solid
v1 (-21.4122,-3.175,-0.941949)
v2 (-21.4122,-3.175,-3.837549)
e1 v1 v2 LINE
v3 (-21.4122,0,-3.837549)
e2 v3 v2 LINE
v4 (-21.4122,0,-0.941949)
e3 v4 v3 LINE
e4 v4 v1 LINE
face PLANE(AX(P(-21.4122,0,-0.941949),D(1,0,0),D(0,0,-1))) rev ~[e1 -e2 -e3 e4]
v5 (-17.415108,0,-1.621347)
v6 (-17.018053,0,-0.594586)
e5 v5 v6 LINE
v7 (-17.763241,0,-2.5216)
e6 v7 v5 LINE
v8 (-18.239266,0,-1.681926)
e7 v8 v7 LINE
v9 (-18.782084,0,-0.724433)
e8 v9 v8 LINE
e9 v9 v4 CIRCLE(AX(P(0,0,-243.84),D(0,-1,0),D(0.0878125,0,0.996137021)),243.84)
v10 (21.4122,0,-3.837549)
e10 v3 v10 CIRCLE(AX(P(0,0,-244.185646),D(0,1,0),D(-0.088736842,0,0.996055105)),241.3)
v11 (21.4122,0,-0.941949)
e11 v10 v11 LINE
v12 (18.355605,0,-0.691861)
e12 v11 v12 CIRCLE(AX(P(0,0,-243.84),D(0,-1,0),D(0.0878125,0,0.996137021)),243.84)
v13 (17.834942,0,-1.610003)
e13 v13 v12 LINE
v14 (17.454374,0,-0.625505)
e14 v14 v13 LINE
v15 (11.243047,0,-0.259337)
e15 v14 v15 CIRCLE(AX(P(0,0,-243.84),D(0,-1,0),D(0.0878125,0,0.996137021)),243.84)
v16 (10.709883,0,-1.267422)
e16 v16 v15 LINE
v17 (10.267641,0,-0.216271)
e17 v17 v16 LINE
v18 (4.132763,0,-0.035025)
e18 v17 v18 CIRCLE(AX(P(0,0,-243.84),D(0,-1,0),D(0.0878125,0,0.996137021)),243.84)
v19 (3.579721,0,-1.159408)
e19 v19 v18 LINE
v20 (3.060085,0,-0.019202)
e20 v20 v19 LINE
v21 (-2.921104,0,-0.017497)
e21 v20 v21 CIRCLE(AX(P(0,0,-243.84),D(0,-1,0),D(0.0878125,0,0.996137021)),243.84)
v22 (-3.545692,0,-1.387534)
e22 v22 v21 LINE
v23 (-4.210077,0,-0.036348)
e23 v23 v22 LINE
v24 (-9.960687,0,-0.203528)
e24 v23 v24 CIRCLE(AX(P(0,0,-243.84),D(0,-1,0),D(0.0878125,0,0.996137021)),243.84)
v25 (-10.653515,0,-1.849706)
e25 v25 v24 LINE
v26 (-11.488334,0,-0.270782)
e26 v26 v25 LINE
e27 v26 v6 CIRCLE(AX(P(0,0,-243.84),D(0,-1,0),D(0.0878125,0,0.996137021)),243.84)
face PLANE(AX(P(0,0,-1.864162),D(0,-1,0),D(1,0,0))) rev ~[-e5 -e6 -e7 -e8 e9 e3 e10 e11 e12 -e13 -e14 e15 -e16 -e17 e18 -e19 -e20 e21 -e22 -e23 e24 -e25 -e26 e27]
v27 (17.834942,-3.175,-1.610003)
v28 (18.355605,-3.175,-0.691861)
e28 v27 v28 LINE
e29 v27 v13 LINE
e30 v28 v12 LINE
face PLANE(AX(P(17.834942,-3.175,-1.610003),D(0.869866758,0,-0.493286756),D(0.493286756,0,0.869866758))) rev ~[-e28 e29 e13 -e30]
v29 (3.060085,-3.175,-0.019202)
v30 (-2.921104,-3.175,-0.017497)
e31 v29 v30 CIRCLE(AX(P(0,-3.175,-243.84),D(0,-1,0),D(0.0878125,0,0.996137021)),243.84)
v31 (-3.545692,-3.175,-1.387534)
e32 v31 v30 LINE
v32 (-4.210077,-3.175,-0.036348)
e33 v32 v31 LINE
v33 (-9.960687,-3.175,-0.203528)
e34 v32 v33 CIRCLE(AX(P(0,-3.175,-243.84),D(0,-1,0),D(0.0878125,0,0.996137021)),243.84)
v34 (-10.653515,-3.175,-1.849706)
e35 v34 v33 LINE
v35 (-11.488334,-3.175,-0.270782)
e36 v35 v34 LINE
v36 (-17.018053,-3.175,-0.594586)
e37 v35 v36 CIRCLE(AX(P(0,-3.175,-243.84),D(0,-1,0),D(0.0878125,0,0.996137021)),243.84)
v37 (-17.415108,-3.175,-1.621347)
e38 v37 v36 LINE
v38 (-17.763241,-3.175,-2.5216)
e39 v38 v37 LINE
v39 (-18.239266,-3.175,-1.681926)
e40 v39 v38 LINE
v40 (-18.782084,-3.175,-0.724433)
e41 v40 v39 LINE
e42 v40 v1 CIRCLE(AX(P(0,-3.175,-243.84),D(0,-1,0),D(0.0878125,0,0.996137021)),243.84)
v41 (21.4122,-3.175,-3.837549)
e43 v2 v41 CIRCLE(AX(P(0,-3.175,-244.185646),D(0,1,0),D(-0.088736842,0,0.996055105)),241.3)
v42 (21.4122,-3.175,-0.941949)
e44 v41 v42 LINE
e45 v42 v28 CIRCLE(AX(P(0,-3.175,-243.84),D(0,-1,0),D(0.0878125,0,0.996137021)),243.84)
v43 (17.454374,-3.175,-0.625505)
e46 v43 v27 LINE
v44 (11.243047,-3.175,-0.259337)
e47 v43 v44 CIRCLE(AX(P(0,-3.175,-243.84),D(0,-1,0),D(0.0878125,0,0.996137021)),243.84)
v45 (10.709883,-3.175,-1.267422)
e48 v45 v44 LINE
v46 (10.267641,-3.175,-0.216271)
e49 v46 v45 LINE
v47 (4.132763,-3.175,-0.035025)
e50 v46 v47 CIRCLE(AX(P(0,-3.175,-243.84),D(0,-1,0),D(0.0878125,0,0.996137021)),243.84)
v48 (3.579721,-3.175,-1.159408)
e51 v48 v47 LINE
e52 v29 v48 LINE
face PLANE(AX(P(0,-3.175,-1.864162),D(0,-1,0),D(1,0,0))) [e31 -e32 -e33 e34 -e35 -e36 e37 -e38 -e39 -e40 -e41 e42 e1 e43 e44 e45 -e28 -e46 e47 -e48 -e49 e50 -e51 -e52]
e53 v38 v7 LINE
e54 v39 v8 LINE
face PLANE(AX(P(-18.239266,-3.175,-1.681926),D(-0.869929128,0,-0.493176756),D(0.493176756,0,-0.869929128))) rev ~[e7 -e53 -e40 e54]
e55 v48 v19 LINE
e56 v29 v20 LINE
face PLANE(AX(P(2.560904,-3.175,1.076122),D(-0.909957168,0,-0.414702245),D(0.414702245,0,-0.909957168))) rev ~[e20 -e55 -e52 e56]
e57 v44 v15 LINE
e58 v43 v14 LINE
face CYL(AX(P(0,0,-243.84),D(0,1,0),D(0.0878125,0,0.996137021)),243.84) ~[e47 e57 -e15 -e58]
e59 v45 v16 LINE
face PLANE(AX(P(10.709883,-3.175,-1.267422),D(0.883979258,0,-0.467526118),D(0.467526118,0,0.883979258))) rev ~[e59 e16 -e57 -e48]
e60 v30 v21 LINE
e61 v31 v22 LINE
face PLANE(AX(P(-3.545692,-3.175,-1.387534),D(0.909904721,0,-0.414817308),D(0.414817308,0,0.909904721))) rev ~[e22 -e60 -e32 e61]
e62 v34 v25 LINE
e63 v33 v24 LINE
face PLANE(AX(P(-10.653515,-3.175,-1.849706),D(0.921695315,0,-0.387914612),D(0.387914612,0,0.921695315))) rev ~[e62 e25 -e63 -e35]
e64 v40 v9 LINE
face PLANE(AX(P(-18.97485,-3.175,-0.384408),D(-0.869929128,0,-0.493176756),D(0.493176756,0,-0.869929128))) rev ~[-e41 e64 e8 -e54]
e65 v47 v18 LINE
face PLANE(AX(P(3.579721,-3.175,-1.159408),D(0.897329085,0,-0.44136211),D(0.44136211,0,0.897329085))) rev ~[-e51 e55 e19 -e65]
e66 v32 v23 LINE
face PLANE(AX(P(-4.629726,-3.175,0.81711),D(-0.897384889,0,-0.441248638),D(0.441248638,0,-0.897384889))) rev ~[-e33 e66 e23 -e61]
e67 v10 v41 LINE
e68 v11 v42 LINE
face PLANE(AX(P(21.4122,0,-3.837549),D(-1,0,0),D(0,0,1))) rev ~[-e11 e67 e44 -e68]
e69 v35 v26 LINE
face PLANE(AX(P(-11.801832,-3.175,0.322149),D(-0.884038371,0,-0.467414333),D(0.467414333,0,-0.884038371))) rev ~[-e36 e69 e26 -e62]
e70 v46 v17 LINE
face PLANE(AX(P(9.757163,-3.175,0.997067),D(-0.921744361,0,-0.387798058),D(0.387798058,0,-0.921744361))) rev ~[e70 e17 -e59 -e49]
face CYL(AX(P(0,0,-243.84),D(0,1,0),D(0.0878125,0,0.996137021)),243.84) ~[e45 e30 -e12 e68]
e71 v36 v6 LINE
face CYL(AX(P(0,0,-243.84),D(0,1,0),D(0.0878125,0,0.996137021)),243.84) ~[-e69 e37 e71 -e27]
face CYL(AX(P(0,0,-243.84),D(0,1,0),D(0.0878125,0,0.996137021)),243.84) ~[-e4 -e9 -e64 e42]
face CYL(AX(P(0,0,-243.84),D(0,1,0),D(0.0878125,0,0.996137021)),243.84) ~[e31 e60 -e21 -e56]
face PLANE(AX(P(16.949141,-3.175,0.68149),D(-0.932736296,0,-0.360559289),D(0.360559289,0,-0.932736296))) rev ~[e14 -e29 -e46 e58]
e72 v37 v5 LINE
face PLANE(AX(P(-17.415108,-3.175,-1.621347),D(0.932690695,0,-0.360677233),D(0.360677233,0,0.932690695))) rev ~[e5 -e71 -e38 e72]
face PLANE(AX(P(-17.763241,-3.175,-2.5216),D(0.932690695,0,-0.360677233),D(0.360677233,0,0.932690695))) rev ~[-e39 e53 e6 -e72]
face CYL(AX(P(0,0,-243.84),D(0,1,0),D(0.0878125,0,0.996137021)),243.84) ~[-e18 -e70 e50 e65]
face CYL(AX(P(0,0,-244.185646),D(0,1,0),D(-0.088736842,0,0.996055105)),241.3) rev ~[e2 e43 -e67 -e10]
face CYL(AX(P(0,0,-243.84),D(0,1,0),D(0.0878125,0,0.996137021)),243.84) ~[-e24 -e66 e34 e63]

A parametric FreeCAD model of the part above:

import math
import FreeCAD as App
import Part
import Sketcher

V = App.Vector
Q = App.Units.Quantity

doc = App.newDocument("Part")
body = doc.addObject("PartDesign::Body", "Body")

# Sketch on XZ plane
sketch1 = doc.addObject("Sketcher::SketchObject", "Sketch")
body.addObject(sketch1)
sketch1.AttachmentSupport = (doc.XZ_Plane, [""])
sketch1.MapMode = "FlatFace"
sketch1.addGeometry(Part.LineSegment(V(21.4, -3.8, 0), V(21.4, -0.9, 0)), False)
sketch1.addGeometry(Part.ArcOfCircle(Part.Circle(V(0, -243.8, 0), V(0, 0, 1), 243.8), math.radians(84.96), math.radians(95.04)), False)
sketch1.addGeometry(Part.LineSegment(V(-21.4, -0.9, 0), V(-21.4, -3.8, 0)), False)
sketch1.addGeometry(Part.ArcOfCircle(Part.Circle(V(0, -244.2, 0), V(0, 0, 1), 241.3), math.radians(84.91), math.radians(95.09)), False)
sketch1.addConstraint(Sketcher.Constraint("Coincident", 0, 2, 1, 1))
sketch1.addConstraint(Sketcher.Constraint("Coincident", 1, 2, 2, 1))
sketch1.addConstraint(Sketcher.Constraint("Coincident", 2, 2, 3, 2))
sketch1.addConstraint(Sketcher.Constraint("Coincident", 3, 1, 0, 1))
sketch1.addConstraint(Sketcher.Constraint("Vertical", 0))
sketch1.addConstraint(Sketcher.Constraint("Vertical", 2))
sketch1.addConstraint(Sketcher.Constraint("Symmetric", 0, 2, 1, 2, -2))
sketch1.addConstraint(Sketcher.Constraint("PointOnObject", 3, 3, -2))
sketch1.addConstraint(Sketcher.Constraint("Radius", 1, Q("9.6 in")))
sketch1.addConstraint(Sketcher.Constraint("Radius", 3, Q("9.5 in")))
sketch1.addConstraint(Sketcher.Constraint("DistanceY", 1, 3, -1, 1, Q("9.6 in")))
sketch1.addConstraint(Sketcher.Constraint("DistanceY", 0, 1, 0, 2, Q("0.114 in")))
sketch1.addConstraint(Sketcher.Constraint("DistanceX", -1, 1, 0, 2, Q("0.843 in")))
pad1 = doc.addObject("PartDesign::Pad", "Pad")
body.addObject(pad1)
pad1.Profile = sketch1
pad1.Length = Q("0.125 in")

# Sketch on XZ plane
sketch2 = doc.addObject("Sketcher::SketchObject", "Sketch001")
body.addObject(sketch2)
sketch2.AttachmentSupport = (doc.XZ_Plane, [""])
sketch2.MapMode = "FlatFace"
sketch2.AttachmentOffset = App.Placement(V(0, 0, 0.125 * 25.4), App.Rotation())
sketch2.addGeometry(Part.LineSegment(V(-16.87715, -0.230219, 0), V(-18.97485, -0.384408, 0)), False)
sketch2.addGeometry(Part.LineSegment(V(-18.97485, -0.384408, 0), V(-18.239266, -1.681926, 0)), False)
sketch2.addGeometry(Part.LineSegment(V(-18.239266, -1.681926, 0), V(-17.763241, -2.5216, 0)), False)
sketch2.addGeometry(Part.LineSegment(V(-17.763241, -2.5216, 0), V(-17.415108, -1.621347, 0)), False)
sketch2.addGeometry(Part.LineSegment(V(-17.415108, -1.621347, 0), V(-16.87715, -0.230219, 0)), False)
sketch2.addGeometry(Part.LineSegment(V(-11.801832, 0.322149, 0), V(-10.653515, -1.849706, 0)), False)
sketch2.addGeometry(Part.LineSegment(V(-10.653515, -1.849706, 0), V(-9.700509, 0.414662, 0)), False)
sketch2.addGeometry(Part.LineSegment(V(-9.700509, 0.414662, 0), V(-11.801832, 0.322149, 0)), False)
sketch2.addGeometry(Part.LineSegment(V(-4.629726, 0.81711, 0), V(-3.545692, -1.387534, 0)), False)
sketch2.addGeometry(Part.LineSegment(V(-3.545692, -1.387534, 0), V(-2.526592, 0.847868, 0)), False)
sketch2.addGeometry(Part.LineSegment(V(-2.526592, 0.847868, 0), V(-4.629726, 0.81711, 0)), False)
sketch2.addGeometry(Part.LineSegment(V(2.560904, 1.076122, 0), V(3.579721, -1.159408, 0)), False)
sketch2.addGeometry(Part.LineSegment(V(3.579721, -1.159408, 0), V(4.664034, 1.045098, 0)), False)
sketch2.addGeometry(Part.LineSegment(V(4.664034, 1.045098, 0), V(2.560904, 1.076122, 0)), False)
sketch2.addGeometry(Part.LineSegment(V(9.757163, 0.997067, 0), V(10.709883, -1.267422, 0)), False)
sketch2.addGeometry(Part.LineSegment(V(10.709883, -1.267422, 0), V(11.858474, 0.904288, 0)), False)
sketch2.addGeometry(Part.LineSegment(V(11.858474, 0.904288, 0), V(9.757163, 0.997067, 0)), False)
sketch2.addGeometry(Part.LineSegment(V(16.949141, 0.68149, 0), V(17.834942, -1.610003, 0)), False)
sketch2.addGeometry(Part.LineSegment(V(17.834942, -1.610003, 0), V(19.046821, 0.527036, 0)), False)
sketch2.addGeometry(Part.LineSegment(V(19.046821, 0.527036, 0), V(16.949141, 0.68149, 0)), False)
sketch2.addConstraint(Sketcher.Constraint("Coincident", 0, 2, 1, 1))
sketch2.addConstraint(Sketcher.Constraint("Coincident", 1, 2, 2, 1))
sketch2.addConstraint(Sketcher.Constraint("Coincident", 2, 2, 3, 1))
sketch2.addConstraint(Sketcher.Constraint("Coincident", 3, 2, 4, 1))
sketch2.addConstraint(Sketcher.Constraint("Coincident", 4, 2, 0, 1))
sketch2.addConstraint(Sketcher.Constraint("Coincident", 5, 2, 6, 1))
sketch2.addConstraint(Sketcher.Constraint("Coincident", 6, 2, 7, 1))
sketch2.addConstraint(Sketcher.Constraint("Coincident", 7, 2, 5, 1))
sketch2.addConstraint(Sketcher.Constraint("Coincident", 8, 2, 9, 1))
sketch2.addConstraint(Sketcher.Constraint("Coincident", 9, 2, 10, 1))
sketch2.addConstraint(Sketcher.Constraint("Coincident", 10, 2, 8, 1))
sketch2.addConstraint(Sketcher.Constraint("Coincident", 11, 2, 12, 1))
sketch2.addConstraint(Sketcher.Constraint("Coincident", 12, 2, 13, 1))
sketch2.addConstraint(Sketcher.Constraint("Coincident", 13, 2, 11, 1))
sketch2.addConstraint(Sketcher.Constraint("Coincident", 14, 2, 15, 1))
sketch2.addConstraint(Sketcher.Constraint("Coincident", 15, 2, 16, 1))
sketch2.addConstraint(Sketcher.Constraint("Coincident", 16, 2, 14, 1))
sketch2.addConstraint(Sketcher.Constraint("Coincident", 17, 2, 18, 1))
sketch2.addConstraint(Sketcher.Constraint("Coincident", 18, 2, 19, 1))
sketch2.addConstraint(Sketcher.Constraint("Coincident", 19, 2, 17, 1))
sketch2.addConstraint(Sketcher.Constraint("DistanceY", 2, 2, -1, 1, Q("2.5216 mm")))
sketch2.addConstraint(Sketcher.Constraint("DistanceY", -1, 1, 12, 2, Q("1.045098 mm")))
sketch2.addConstraint(Sketcher.Constraint("DistanceX", 0, 2, 4, 2, Q("2.0977 mm")))
sketch2.addConstraint(Sketcher.Constraint("DistanceY", 5, 2, 0, 2, Q("1.465299 mm")))
sketch2.addConstraint(Sketcher.Constraint("DistanceX", 3, 2, 6, 2, Q("7.714599 mm")))
sketch2.addConstraint(Sketcher.Constraint("DistanceX", 8, 2, 9, 2, Q("1.019099 mm")))
sketch2.addConstraint(Sketcher.Constraint("DistanceY", 8, 2, 9, 2, Q("2.235402 mm")))
sketch2.addConstraint(Sketcher.Constraint("DistanceY", 17, 2, 12, 2, Q("2.655101 mm")))
sketch2.addConstraint(Sketcher.Constraint("DistanceX", 19, 2, 17, 2, Q("0.885801 mm")))
sketch2.addConstraint(Sketcher.Constraint("Distance", 0, Q("2.103359 mm")))
sketch2.addConstraint(Sketcher.Constraint("Distance", 1, Q("1.491522 mm")))
sketch2.addConstraint(Sketcher.Constraint("Distance", 2, Q("0.965221 mm")))
sketch2.addConstraint(Sketcher.Constraint("Distance", 3, Q("0.965221 mm")))
sketch2.addConstraint(Sketcher.Constraint("Distance", 4, Q("1.491522 mm")))
sketch2.addConstraint(Sketcher.Constraint("Distance", 7, Q("2.103359 mm")))
sketch2.addConstraint(Sketcher.Constraint("Distance", 10, Q("2.103359 mm")))
sketch2.addConstraint(Sketcher.Constraint("Distance", 13, Q("2.103359 mm")))
sketch2.addConstraint(Sketcher.Constraint("Distance", 16, Q("2.103359 mm")))
sketch2.addConstraint(Sketcher.Constraint("Distance", 19, Q("2.103359 mm")))
sketch2.addConstraint(Sketcher.Constraint("DistanceX", 0, 2, -1, 1, Q("18.97485 mm")))
sketch2.addConstraint(Sketcher.Constraint("DistanceX", 6, 2, -1, 1, Q("9.700509 mm")))
sketch2.addConstraint(Sketcher.Constraint("DistanceX", 7, 2, -1, 1, Q("11.801832 mm")))
sketch2.addConstraint(Sketcher.Constraint("DistanceY", -1, 1, 7, 2, Q("0.322149 mm")))
sketch2.addConstraint(Sketcher.Constraint("DistanceX", 8, 2, -1, 1, Q("3.545692 mm")))
sketch2.addConstraint(Sketcher.Constraint("DistanceY", -1, 1, 10, 2, Q("0.81711 mm")))
sketch2.addConstraint(Sketcher.Constraint("DistanceX", -1, 1, 11, 2, Q("3.579721 mm")))
sketch2.addConstraint(Sketcher.Constraint("DistanceY", 11, 2, -1, 1, Q("1.159408 mm")))
sketch2.addConstraint(Sketcher.Constraint("DistanceX", -1, 1, 18, 2, Q("19.046821 mm")))
sketch2.addConstraint(Sketcher.Constraint("DistanceX", -1, 1, 19, 2, Q("16.949141 mm")))
sketch2.addConstraint(Sketcher.Constraint("DistanceY", -1, 1, 19, 2, Q("0.68149 mm")))
sketch2.addConstraint(Sketcher.Constraint("DistanceY", 1, 2, 0, 2, Q("1.297518 mm")))
sketch2.addConstraint(Sketcher.Constraint("DistanceX", 1, 2, 5, 2, Q("7.585751 mm")))
sketch2.addConstraint(Sketcher.Constraint("DistanceY", 7, 2, 9, 2, Q("0.525719 mm")))
sketch2.addConstraint(Sketcher.Constraint("DistanceX", 10, 2, 12, 2, Q("9.29376 mm")))
sketch2.addConstraint(Sketcher.Constraint("DistanceX", 13, 2, 12, 2, Q("2.10313 mm")))
sketch2.addConstraint(Sketcher.Constraint("DistanceX", 12, 2, 14, 2, Q("6.045849 mm")))
sketch2.addConstraint(Sketcher.Constraint("DistanceY", 14, 2, 12, 2, Q("2.31252 mm")))
sketch2.addConstraint(Sketcher.Constraint("DistanceX", 14, 2, 15, 2, Q("1.148591 mm")))
sketch2.addConstraint(Sketcher.Constraint("DistanceY", 14, 2, 15, 2, Q("2.17171 mm")))
sketch2.addConstraint(Sketcher.Constraint("DistanceX", 16, 2, 15, 2, Q("2.101311 mm")))
pocket1 = doc.addObject("PartDesign::Pocket", "Pocket")
body.addObject(pocket1)
pocket1.Profile = sketch2
pocket1.Type = "ThroughAll"

doc.recompute()
